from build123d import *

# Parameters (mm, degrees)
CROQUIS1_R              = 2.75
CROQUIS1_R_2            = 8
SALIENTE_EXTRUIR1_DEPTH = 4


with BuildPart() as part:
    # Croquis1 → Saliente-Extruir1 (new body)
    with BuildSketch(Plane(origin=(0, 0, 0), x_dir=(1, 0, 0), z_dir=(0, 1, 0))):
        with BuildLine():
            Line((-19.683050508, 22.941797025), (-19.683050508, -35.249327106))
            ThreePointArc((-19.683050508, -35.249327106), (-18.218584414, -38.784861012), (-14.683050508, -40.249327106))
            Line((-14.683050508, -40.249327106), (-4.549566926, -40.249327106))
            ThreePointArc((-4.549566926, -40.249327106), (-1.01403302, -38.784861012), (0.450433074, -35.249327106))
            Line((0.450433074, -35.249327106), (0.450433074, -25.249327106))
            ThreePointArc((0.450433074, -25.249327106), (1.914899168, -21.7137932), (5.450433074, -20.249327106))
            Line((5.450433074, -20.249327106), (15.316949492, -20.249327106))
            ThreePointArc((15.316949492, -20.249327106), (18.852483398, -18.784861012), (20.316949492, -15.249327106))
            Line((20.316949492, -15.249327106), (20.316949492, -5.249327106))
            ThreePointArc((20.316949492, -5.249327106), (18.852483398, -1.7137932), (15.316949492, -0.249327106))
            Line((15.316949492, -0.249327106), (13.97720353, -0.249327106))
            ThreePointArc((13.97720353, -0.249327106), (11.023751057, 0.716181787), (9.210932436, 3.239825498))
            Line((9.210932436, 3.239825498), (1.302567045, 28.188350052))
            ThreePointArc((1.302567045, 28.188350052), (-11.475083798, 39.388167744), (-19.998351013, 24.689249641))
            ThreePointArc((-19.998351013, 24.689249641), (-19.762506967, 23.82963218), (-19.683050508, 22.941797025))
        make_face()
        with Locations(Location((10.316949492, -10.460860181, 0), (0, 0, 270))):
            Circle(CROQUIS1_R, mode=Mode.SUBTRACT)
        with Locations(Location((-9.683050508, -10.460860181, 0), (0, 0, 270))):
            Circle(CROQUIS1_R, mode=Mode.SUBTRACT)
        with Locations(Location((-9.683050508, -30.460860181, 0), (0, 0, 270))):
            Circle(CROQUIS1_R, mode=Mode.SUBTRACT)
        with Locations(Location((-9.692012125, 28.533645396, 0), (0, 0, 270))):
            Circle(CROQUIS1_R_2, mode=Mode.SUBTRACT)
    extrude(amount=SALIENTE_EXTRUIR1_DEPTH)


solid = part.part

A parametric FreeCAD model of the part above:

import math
import FreeCAD as App
import Part
import Sketcher

V = App.Vector
Q = App.Units.Quantity

doc = App.newDocument("Part")
body = doc.addObject("PartDesign::Body", "Body")

sketch1 = doc.addObject("Sketcher::SketchObject", "Sketch")
body.addObject(sketch1)
sketch1.AttachmentSupport = (doc.XZ_Plane, [""])
sketch1.MapMode = "FlatFace"
sketch1.addGeometry([
    Part.LineSegment(V(-19.683051, -22.941797, 0), V(-19.683051, 35.249327, 0)),
    Part.ArcOfCircle(Part.Circle(V(-14.683051, 35.249327, 0), V(0, 0, 1), 5), math.radians(90), math.radians(180)),
    Part.LineSegment(V(-14.683051, 40.249327, 0), V(-4.549567, 40.249327, 0)),
    Part.ArcOfCircle(Part.Circle(V(-4.549567, 35.249327, 0), V(0, 0, 1), 5), math.radians(0), math.radians(90)),
    Part.LineSegment(V(0.450433, 35.249327, 0), V(0.450433, 25.249327, 0)),
    Part.ArcOfCircle(Part.Circle(V(5.450433, 25.249327, 0), V(0, 0, 1), 5), math.radians(180), math.radians(270)),
    Part.LineSegment(V(5.450433, 20.249327, 0), V(15.316949, 20.249327, 0)),
    Part.ArcOfCircle(Part.Circle(V(15.316949, 15.249327, 0), V(0, 0, 1), 5), math.radians(0), math.radians(90)),
    Part.LineSegment(V(20.316949, 15.249327, 0), V(20.316949, 5.249327, 0)),
    Part.ArcOfCircle(Part.Circle(V(15.316949, 5.249327, 0), V(0, 0, 1), 5), math.radians(-90), math.radians(0)),
    Part.LineSegment(V(15.316949, 0.249327, 0), V(13.977204, 0.249327, 0)),
    Part.ArcOfCircle(Part.Circle(V(13.977204, -4.750673, 0), V(0, 0, 1), 5), math.radians(90), math.radians(162.412046)),
    Part.LineSegment(V(9.210932, -3.239825, 0), V(1.302567, -28.18835, 0)),
    Part.ArcOfCircle(Part.Circle(V(-9.692012, -28.533645, 0), V(0, 0, 1), 11), math.radians(159.543844), math.radians(361.798838)),
    Part.ArcOfCircle(Part.Circle(V(-24.683051, -22.941797, 0), V(0, 0, 1), 5), math.radians(-20.456156), math.radians(0)),
    Part.Circle(V(-9.683051, 30.46086, 0), V(0, 0, 1), 2.75),
    Part.Circle(V(-9.683051, 10.46086, 0), V(0, 0, 1), 2.75),
    Part.Circle(V(10.316949, 10.46086, 0), V(0, 0, 1), 2.75),
    Part.Circle(V(-9.692012, -28.533645, 0), V(0, 0, 1), 8),
], False)
sketch1.addConstraint([
    Sketcher.Constraint("Tangent", 0, 2, 1, 2),
    Sketcher.Constraint("Tangent", 1, 1, 2, 1),
    Sketcher.Constraint("Tangent", 2, 2, 3, 2),
    Sketcher.Constraint("Tangent", 3, 1, 4, 1),
    Sketcher.Constraint("Tangent", 4, 2, 5, 1),
    Sketcher.Constraint("Tangent", 5, 2, 6, 1),
    Sketcher.Constraint("Tangent", 6, 2, 7, 2),
    Sketcher.Constraint("Tangent", 7, 1, 8, 1),
    Sketcher.Constraint("Tangent", 8, 2, 9, 2),
    Sketcher.Constraint("Tangent", 9, 1, 10, 1),
    Sketcher.Constraint("Tangent", 10, 2, 11, 1),
    Sketcher.Constraint("Tangent", 11, 2, 12, 1),
    Sketcher.Constraint("Coincident", 12, 2, 13, 2),
    Sketcher.Constraint("Tangent", 13, 1, 14, 1),
    Sketcher.Constraint("Tangent", 14, 2, 0, 1),
    Sketcher.Constraint("Vertical", 0),
    Sketcher.Constraint("Horizontal", 2),
    Sketcher.Constraint("Vertical", 4),
    Sketcher.Constraint("Horizontal", 6),
    Sketcher.Constraint("Vertical", 8),
    Sketcher.Constraint("Horizontal", 10),
    Sketcher.Constraint("Coincident", 18, 3, 13, 3),
    Sketcher.Constraint("Equal", 1, 3),
    Sketcher.Constraint("Equal", 3, 5),
    Sketcher.Constraint("Equal", 5, 7),
    Sketcher.Constraint("Equal", 7, 9),
    Sketcher.Constraint("Equal", 9, 11),
    Sketcher.Constraint("Equal", 11, 14),
    Sketcher.Constraint("Equal", 15, 16),
    Sketcher.Constraint("Equal", 16, 17),
    Sketcher.Constraint("Horizontal", 16, 3, 17, 3),
    Sketcher.Constraint("Vertical", 15, 3, 16, 3),
    Sketcher.Constraint("Equal", 4, 8),
    Sketcher.Constraint("Diameter", 18, Q("16 mm")),
    Sketcher.Constraint("Radius", 1, Q("5 mm")),
    Sketcher.Constraint("Radius", 13, Q("11 mm")),
    Sketcher.Constraint("Diameter", 15, Q("5.5 mm")),
    Sketcher.Constraint("DistanceY", 4, 2, 4, 1, Q("10 mm")),
    Sketcher.Constraint("DistanceX", 1, 3, 7, 3, Q("30 mm")),
    Sketcher.Constraint("DistanceX", 1, 3, 15, 3, Q("5 mm")),
    Sketcher.Constraint("DistanceY", 16, 3, 15, 3, Q("20 mm")),
    Sketcher.Constraint("DistanceX", 17, 3, 7, 3, Q("5 mm")),
    Sketcher.Constraint("DistanceX", 14, 3, 13, 1, Q("4.684699 mm")),
    Sketcher.Constraint("DistanceY", 12, 2, 13, 1, Q("3.4991 mm")),
    Sketcher.Constraint("DistanceX", 2, 1, 2, 2, Q("10.133484 mm")),
    Sketcher.Constraint("DistanceX", 10, 2, 10, 1, Q("1.339746 mm")),
    Sketcher.Constraint("DistanceY", 0, 1, 0, 2, Q("58.191124 mm")),
    Sketcher.Constraint("DistanceX", 1, 3, -1, 1, Q("14.683051 mm")),
    Sketcher.Constraint("DistanceY", -1, 1, 15, 3, Q("30.46086 mm")),
    Sketcher.Constraint("DistanceY", 12, 2, -1, 1, Q("28.18835 mm")),
])
pad1 = doc.addObject("PartDesign::Pad", "Pad")
body.addObject(pad1)
pad1.Profile = sketch1
pad1.Length = 4
pad1.Reversed = True

doc.recompute()
